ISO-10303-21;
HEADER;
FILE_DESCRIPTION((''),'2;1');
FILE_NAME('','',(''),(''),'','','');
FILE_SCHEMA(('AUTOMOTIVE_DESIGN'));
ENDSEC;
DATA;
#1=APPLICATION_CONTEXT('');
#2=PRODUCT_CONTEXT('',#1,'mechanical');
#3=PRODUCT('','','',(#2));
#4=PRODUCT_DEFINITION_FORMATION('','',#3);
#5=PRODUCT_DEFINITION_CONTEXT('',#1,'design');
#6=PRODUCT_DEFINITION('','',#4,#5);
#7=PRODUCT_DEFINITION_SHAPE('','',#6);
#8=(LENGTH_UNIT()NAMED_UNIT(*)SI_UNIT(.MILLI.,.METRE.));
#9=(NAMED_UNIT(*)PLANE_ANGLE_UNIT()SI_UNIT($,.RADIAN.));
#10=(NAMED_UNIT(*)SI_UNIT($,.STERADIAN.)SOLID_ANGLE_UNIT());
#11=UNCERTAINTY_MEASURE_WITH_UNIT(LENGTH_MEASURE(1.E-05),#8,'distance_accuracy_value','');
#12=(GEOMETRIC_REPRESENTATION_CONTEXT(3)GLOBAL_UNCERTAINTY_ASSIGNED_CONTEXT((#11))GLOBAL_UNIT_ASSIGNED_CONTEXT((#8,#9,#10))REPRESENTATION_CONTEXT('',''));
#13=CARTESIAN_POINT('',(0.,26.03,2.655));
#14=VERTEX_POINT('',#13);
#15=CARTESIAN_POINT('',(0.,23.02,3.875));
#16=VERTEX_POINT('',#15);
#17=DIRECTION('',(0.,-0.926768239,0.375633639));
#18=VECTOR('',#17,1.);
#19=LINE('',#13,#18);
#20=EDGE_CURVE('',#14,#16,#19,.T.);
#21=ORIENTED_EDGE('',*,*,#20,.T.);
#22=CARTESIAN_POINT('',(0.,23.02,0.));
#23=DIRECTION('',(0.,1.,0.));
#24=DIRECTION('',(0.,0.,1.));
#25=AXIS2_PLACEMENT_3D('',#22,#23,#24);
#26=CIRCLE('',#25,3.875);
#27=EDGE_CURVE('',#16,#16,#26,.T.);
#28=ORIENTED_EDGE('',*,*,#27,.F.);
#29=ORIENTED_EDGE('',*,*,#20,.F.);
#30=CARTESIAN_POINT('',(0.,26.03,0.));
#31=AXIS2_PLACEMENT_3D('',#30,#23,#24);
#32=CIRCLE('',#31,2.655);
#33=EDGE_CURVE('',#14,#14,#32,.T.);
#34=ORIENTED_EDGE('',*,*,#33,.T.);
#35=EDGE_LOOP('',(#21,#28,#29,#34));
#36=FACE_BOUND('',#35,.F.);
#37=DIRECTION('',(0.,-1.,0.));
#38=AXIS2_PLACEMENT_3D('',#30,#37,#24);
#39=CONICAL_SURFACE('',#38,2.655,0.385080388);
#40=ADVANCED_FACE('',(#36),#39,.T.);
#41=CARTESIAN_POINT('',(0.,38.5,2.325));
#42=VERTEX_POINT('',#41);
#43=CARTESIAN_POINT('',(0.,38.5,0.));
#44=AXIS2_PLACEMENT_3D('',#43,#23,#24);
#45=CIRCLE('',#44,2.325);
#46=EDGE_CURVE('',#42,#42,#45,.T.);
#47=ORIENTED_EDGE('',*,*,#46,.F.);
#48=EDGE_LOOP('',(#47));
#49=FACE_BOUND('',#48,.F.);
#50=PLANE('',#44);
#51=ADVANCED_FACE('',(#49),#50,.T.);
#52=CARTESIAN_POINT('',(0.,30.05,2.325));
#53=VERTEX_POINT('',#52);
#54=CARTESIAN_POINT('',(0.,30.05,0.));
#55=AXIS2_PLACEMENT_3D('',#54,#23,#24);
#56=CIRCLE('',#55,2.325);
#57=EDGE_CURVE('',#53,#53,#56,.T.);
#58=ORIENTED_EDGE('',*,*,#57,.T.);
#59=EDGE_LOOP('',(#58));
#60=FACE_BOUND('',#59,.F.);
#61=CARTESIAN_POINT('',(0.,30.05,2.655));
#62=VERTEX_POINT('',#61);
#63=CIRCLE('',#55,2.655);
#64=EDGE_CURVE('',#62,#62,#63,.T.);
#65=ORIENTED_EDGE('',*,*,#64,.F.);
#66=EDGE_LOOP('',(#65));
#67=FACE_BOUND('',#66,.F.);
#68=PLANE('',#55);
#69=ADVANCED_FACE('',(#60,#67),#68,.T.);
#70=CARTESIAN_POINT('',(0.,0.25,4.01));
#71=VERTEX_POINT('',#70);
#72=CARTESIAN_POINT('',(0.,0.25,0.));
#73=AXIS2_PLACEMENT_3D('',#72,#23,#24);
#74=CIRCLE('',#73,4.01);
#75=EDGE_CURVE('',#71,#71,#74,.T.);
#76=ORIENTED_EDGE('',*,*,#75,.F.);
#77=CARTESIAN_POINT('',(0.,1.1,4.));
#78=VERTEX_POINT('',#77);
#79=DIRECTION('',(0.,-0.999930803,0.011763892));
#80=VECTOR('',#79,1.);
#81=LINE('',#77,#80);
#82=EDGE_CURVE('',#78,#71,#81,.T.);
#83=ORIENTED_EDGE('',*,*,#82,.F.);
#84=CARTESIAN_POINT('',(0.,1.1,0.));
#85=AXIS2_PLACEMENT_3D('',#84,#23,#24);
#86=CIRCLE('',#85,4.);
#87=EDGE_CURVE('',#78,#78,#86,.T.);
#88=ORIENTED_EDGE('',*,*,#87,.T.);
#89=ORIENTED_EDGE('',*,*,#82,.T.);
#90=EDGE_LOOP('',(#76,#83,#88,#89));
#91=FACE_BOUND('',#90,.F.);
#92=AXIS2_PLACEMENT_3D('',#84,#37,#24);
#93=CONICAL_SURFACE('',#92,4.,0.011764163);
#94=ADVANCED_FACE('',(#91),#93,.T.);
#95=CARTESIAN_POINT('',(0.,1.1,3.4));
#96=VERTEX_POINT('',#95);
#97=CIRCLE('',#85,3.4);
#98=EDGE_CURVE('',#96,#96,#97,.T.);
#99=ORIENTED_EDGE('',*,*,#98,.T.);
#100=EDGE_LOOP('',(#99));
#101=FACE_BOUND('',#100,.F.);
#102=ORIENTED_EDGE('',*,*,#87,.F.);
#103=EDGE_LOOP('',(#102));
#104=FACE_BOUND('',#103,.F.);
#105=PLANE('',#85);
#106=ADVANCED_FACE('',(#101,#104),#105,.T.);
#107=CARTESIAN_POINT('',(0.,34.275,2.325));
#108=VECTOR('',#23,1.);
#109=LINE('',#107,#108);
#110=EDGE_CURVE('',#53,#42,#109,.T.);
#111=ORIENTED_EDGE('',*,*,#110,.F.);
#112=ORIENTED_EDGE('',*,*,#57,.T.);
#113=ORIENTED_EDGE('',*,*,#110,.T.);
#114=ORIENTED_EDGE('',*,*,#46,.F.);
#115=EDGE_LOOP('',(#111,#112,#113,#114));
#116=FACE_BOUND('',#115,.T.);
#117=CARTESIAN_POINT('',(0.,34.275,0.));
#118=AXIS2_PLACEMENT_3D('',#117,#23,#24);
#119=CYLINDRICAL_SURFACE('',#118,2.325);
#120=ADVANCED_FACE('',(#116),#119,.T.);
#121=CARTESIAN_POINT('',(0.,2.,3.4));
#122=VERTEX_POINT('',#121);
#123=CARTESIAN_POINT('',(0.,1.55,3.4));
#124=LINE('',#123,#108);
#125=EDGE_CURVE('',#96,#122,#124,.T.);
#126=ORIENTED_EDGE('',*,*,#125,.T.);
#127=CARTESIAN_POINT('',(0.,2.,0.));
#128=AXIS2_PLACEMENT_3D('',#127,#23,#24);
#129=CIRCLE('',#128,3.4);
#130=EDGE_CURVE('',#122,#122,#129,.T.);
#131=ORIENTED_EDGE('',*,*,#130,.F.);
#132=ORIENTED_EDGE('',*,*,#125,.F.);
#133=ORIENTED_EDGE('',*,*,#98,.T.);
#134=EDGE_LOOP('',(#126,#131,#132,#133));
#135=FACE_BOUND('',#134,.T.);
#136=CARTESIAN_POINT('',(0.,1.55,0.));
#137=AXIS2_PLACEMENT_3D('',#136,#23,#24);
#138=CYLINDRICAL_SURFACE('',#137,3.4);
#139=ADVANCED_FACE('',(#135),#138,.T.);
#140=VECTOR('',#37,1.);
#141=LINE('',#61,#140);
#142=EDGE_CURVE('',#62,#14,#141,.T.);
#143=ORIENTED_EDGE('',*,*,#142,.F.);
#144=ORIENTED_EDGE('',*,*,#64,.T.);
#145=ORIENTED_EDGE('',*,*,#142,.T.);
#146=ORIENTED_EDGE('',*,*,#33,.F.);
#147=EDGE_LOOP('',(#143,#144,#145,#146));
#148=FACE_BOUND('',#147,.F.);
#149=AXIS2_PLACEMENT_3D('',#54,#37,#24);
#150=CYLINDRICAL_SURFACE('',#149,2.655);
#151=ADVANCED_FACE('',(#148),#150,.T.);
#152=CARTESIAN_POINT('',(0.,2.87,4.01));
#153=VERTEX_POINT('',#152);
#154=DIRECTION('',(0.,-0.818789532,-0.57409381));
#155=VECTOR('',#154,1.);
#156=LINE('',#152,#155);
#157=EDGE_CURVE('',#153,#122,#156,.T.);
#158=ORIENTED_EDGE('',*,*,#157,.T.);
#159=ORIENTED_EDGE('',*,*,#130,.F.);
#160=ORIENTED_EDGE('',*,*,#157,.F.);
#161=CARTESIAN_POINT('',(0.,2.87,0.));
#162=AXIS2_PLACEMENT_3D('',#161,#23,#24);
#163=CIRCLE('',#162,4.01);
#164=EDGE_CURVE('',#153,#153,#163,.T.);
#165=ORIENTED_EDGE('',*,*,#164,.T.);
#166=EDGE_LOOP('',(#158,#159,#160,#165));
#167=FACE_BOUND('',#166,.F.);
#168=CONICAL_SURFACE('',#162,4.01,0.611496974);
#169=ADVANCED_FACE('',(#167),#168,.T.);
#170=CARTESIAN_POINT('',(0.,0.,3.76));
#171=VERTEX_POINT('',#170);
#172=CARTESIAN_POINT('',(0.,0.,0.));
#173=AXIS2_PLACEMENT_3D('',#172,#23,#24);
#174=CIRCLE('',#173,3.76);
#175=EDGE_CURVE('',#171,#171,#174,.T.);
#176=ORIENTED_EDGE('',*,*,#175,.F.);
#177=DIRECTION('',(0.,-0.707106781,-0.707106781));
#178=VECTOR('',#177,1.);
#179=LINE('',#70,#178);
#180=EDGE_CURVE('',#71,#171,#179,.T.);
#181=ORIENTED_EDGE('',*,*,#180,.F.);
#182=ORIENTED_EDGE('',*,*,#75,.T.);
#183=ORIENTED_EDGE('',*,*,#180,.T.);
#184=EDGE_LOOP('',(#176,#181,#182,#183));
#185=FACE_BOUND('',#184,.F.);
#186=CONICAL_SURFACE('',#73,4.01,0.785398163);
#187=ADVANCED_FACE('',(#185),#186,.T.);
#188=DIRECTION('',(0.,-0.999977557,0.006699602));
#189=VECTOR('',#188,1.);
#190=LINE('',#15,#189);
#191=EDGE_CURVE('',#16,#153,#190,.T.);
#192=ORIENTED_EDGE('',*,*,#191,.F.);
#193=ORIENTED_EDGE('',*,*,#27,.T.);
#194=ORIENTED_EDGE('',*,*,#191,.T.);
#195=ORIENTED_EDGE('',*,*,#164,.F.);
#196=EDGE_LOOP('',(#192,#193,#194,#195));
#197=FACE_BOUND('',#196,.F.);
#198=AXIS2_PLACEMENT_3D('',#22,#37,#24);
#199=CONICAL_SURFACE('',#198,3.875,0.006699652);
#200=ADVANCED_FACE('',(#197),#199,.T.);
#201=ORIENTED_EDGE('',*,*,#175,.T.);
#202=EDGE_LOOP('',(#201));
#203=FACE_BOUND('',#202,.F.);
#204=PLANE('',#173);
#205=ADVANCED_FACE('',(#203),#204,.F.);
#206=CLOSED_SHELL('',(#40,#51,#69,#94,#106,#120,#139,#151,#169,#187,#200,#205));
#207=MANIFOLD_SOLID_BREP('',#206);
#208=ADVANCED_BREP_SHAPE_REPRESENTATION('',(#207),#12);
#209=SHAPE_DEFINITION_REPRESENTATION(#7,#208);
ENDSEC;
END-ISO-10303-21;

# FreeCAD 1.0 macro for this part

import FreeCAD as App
import Part
import Sketcher
from FreeCAD import Vector
Q = App.Units.Quantity


def add_polygon(sketch, points):
    """Adds a closed chain of lines whose ends are joined by coincident constraints."""
    first, n = sketch.GeometryCount, len(points)
    for a, b in zip(points, points[1:] + points[:1]):
        sketch.addGeometry(Part.LineSegment(App.Vector(*a, 0), App.Vector(*b, 0)), False)
    for i in range(n):
        sketch.addConstraint(Sketcher.Constraint("Coincident", first + i, 2, first + (i + 1) % n, 1))

doc = App.newDocument("Part")
params = doc.addObject("Spreadsheet::Sheet", "Params")
for row, (alias, value) in enumerate([
    ("sketch1_width", "38.5 mm"),
    ("sketch1_width2", "0.9 mm"),
    ("sketch1_height", "0.6 mm"),
    ("sketch1_width3", "8.45 mm"),
    ("sketch1_width4", "4.02 mm"),
    ("revolution_angle", "360 deg"),
], start=1):
    params.set(f"A{row}", alias)
    params.set(f"B{row}", "=" + value)
    params.setAlias(f"B{row}", alias)

body = doc.addObject("PartDesign::Body", "Body")

# Sketch on YZ plane
sketch1 = doc.addObject("Sketcher::SketchObject", "Sketch")
body.addObject(sketch1)
sketch1.AttachmentSupport = (doc.YZ_Plane, [""])
sketch1.MapMode = "FlatFace"
add_polygon(sketch1, [(0, 3.76), (0, 0), (38.5, 0), (38.5, 2.33), (30.05, 2.33), (30.05, 2.65), (26.03, 2.65), (23.02, 3.88), (2.87, 4.01), (2, 3.4), (1.1, 3.4), (1.1, 4), (0.25, 4.01)])  # lines 0-12
sketch1.addConstraint([
    Sketcher.Constraint("Vertical", 0),
    Sketcher.Constraint("Horizontal", 1),
    Sketcher.Constraint("Vertical", 2),
    Sketcher.Constraint("Horizontal", 3),
    Sketcher.Constraint("Vertical", 4),
    Sketcher.Constraint("Horizontal", 5),
    Sketcher.Constraint("Horizontal", 9),
    Sketcher.Constraint("Vertical", 10),
    Sketcher.Constraint("Coincident", 0, 2, -1, 1),
    Sketcher.Constraint("Horizontal", 7, 2, 11, 2),
    Sketcher.Constraint("Angle", 12, Q("-135 deg")),
    Sketcher.Constraint("DistanceX", 1, 1, 1, 2, 38.5),
    Sketcher.Constraint("DistanceX", 9, 2, 9, 1, 0.9),
    Sketcher.Constraint("DistanceY", 10, 1, 10, 2, 0.6),
    Sketcher.Constraint("DistanceX", -1, 1, 8, 2, 2.0),
    Sketcher.Constraint("DistanceY", -1, 1, 10, 2, 4.0),
    Sketcher.Constraint("DistanceX", 3, 2, 3, 1, 8.45),
    Sketcher.Constraint("DistanceX", 5, 2, 5, 1, 4.02),
    Sketcher.Constraint("DistanceY", 0, 2, 0, 1, 3.76),
    Sketcher.Constraint("DistanceY", 4, 1, 4, 2, 0.33),
    Sketcher.Constraint("DistanceY", 2, 1, 2, 2, 2.325),
    Sketcher.Constraint("DistanceX", -1, 1, 6, 2, 23.02),
    Sketcher.Constraint("DistanceX", -1, 1, 7, 2, 2.87),
    Sketcher.Constraint("DistanceY", -1, 1, 7, 2, 4.01),
    Sketcher.Constraint("DistanceY", 5, 2, 6, 2, 1.22),
])
sketch1.setExpression("Constraints[24]", "Params.sketch1_width")
sketch1.setExpression("Constraints[25]", "Params.sketch1_width2")
sketch1.setExpression("Constraints[26]", "Params.sketch1_height")
sketch1.setExpression("Constraints[29]", "Params.sketch1_width3")
sketch1.setExpression("Constraints[30]", "Params.sketch1_width4")
revolution = doc.addObject("PartDesign::Revolution", "Revolution")
body.addObject(revolution)
revolution.Profile = sketch1
revolution.ReferenceAxis = (sketch1, ["H_Axis"])
revolution.setExpression("Angle", "Params.revolution_angle")

doc.recompute()
